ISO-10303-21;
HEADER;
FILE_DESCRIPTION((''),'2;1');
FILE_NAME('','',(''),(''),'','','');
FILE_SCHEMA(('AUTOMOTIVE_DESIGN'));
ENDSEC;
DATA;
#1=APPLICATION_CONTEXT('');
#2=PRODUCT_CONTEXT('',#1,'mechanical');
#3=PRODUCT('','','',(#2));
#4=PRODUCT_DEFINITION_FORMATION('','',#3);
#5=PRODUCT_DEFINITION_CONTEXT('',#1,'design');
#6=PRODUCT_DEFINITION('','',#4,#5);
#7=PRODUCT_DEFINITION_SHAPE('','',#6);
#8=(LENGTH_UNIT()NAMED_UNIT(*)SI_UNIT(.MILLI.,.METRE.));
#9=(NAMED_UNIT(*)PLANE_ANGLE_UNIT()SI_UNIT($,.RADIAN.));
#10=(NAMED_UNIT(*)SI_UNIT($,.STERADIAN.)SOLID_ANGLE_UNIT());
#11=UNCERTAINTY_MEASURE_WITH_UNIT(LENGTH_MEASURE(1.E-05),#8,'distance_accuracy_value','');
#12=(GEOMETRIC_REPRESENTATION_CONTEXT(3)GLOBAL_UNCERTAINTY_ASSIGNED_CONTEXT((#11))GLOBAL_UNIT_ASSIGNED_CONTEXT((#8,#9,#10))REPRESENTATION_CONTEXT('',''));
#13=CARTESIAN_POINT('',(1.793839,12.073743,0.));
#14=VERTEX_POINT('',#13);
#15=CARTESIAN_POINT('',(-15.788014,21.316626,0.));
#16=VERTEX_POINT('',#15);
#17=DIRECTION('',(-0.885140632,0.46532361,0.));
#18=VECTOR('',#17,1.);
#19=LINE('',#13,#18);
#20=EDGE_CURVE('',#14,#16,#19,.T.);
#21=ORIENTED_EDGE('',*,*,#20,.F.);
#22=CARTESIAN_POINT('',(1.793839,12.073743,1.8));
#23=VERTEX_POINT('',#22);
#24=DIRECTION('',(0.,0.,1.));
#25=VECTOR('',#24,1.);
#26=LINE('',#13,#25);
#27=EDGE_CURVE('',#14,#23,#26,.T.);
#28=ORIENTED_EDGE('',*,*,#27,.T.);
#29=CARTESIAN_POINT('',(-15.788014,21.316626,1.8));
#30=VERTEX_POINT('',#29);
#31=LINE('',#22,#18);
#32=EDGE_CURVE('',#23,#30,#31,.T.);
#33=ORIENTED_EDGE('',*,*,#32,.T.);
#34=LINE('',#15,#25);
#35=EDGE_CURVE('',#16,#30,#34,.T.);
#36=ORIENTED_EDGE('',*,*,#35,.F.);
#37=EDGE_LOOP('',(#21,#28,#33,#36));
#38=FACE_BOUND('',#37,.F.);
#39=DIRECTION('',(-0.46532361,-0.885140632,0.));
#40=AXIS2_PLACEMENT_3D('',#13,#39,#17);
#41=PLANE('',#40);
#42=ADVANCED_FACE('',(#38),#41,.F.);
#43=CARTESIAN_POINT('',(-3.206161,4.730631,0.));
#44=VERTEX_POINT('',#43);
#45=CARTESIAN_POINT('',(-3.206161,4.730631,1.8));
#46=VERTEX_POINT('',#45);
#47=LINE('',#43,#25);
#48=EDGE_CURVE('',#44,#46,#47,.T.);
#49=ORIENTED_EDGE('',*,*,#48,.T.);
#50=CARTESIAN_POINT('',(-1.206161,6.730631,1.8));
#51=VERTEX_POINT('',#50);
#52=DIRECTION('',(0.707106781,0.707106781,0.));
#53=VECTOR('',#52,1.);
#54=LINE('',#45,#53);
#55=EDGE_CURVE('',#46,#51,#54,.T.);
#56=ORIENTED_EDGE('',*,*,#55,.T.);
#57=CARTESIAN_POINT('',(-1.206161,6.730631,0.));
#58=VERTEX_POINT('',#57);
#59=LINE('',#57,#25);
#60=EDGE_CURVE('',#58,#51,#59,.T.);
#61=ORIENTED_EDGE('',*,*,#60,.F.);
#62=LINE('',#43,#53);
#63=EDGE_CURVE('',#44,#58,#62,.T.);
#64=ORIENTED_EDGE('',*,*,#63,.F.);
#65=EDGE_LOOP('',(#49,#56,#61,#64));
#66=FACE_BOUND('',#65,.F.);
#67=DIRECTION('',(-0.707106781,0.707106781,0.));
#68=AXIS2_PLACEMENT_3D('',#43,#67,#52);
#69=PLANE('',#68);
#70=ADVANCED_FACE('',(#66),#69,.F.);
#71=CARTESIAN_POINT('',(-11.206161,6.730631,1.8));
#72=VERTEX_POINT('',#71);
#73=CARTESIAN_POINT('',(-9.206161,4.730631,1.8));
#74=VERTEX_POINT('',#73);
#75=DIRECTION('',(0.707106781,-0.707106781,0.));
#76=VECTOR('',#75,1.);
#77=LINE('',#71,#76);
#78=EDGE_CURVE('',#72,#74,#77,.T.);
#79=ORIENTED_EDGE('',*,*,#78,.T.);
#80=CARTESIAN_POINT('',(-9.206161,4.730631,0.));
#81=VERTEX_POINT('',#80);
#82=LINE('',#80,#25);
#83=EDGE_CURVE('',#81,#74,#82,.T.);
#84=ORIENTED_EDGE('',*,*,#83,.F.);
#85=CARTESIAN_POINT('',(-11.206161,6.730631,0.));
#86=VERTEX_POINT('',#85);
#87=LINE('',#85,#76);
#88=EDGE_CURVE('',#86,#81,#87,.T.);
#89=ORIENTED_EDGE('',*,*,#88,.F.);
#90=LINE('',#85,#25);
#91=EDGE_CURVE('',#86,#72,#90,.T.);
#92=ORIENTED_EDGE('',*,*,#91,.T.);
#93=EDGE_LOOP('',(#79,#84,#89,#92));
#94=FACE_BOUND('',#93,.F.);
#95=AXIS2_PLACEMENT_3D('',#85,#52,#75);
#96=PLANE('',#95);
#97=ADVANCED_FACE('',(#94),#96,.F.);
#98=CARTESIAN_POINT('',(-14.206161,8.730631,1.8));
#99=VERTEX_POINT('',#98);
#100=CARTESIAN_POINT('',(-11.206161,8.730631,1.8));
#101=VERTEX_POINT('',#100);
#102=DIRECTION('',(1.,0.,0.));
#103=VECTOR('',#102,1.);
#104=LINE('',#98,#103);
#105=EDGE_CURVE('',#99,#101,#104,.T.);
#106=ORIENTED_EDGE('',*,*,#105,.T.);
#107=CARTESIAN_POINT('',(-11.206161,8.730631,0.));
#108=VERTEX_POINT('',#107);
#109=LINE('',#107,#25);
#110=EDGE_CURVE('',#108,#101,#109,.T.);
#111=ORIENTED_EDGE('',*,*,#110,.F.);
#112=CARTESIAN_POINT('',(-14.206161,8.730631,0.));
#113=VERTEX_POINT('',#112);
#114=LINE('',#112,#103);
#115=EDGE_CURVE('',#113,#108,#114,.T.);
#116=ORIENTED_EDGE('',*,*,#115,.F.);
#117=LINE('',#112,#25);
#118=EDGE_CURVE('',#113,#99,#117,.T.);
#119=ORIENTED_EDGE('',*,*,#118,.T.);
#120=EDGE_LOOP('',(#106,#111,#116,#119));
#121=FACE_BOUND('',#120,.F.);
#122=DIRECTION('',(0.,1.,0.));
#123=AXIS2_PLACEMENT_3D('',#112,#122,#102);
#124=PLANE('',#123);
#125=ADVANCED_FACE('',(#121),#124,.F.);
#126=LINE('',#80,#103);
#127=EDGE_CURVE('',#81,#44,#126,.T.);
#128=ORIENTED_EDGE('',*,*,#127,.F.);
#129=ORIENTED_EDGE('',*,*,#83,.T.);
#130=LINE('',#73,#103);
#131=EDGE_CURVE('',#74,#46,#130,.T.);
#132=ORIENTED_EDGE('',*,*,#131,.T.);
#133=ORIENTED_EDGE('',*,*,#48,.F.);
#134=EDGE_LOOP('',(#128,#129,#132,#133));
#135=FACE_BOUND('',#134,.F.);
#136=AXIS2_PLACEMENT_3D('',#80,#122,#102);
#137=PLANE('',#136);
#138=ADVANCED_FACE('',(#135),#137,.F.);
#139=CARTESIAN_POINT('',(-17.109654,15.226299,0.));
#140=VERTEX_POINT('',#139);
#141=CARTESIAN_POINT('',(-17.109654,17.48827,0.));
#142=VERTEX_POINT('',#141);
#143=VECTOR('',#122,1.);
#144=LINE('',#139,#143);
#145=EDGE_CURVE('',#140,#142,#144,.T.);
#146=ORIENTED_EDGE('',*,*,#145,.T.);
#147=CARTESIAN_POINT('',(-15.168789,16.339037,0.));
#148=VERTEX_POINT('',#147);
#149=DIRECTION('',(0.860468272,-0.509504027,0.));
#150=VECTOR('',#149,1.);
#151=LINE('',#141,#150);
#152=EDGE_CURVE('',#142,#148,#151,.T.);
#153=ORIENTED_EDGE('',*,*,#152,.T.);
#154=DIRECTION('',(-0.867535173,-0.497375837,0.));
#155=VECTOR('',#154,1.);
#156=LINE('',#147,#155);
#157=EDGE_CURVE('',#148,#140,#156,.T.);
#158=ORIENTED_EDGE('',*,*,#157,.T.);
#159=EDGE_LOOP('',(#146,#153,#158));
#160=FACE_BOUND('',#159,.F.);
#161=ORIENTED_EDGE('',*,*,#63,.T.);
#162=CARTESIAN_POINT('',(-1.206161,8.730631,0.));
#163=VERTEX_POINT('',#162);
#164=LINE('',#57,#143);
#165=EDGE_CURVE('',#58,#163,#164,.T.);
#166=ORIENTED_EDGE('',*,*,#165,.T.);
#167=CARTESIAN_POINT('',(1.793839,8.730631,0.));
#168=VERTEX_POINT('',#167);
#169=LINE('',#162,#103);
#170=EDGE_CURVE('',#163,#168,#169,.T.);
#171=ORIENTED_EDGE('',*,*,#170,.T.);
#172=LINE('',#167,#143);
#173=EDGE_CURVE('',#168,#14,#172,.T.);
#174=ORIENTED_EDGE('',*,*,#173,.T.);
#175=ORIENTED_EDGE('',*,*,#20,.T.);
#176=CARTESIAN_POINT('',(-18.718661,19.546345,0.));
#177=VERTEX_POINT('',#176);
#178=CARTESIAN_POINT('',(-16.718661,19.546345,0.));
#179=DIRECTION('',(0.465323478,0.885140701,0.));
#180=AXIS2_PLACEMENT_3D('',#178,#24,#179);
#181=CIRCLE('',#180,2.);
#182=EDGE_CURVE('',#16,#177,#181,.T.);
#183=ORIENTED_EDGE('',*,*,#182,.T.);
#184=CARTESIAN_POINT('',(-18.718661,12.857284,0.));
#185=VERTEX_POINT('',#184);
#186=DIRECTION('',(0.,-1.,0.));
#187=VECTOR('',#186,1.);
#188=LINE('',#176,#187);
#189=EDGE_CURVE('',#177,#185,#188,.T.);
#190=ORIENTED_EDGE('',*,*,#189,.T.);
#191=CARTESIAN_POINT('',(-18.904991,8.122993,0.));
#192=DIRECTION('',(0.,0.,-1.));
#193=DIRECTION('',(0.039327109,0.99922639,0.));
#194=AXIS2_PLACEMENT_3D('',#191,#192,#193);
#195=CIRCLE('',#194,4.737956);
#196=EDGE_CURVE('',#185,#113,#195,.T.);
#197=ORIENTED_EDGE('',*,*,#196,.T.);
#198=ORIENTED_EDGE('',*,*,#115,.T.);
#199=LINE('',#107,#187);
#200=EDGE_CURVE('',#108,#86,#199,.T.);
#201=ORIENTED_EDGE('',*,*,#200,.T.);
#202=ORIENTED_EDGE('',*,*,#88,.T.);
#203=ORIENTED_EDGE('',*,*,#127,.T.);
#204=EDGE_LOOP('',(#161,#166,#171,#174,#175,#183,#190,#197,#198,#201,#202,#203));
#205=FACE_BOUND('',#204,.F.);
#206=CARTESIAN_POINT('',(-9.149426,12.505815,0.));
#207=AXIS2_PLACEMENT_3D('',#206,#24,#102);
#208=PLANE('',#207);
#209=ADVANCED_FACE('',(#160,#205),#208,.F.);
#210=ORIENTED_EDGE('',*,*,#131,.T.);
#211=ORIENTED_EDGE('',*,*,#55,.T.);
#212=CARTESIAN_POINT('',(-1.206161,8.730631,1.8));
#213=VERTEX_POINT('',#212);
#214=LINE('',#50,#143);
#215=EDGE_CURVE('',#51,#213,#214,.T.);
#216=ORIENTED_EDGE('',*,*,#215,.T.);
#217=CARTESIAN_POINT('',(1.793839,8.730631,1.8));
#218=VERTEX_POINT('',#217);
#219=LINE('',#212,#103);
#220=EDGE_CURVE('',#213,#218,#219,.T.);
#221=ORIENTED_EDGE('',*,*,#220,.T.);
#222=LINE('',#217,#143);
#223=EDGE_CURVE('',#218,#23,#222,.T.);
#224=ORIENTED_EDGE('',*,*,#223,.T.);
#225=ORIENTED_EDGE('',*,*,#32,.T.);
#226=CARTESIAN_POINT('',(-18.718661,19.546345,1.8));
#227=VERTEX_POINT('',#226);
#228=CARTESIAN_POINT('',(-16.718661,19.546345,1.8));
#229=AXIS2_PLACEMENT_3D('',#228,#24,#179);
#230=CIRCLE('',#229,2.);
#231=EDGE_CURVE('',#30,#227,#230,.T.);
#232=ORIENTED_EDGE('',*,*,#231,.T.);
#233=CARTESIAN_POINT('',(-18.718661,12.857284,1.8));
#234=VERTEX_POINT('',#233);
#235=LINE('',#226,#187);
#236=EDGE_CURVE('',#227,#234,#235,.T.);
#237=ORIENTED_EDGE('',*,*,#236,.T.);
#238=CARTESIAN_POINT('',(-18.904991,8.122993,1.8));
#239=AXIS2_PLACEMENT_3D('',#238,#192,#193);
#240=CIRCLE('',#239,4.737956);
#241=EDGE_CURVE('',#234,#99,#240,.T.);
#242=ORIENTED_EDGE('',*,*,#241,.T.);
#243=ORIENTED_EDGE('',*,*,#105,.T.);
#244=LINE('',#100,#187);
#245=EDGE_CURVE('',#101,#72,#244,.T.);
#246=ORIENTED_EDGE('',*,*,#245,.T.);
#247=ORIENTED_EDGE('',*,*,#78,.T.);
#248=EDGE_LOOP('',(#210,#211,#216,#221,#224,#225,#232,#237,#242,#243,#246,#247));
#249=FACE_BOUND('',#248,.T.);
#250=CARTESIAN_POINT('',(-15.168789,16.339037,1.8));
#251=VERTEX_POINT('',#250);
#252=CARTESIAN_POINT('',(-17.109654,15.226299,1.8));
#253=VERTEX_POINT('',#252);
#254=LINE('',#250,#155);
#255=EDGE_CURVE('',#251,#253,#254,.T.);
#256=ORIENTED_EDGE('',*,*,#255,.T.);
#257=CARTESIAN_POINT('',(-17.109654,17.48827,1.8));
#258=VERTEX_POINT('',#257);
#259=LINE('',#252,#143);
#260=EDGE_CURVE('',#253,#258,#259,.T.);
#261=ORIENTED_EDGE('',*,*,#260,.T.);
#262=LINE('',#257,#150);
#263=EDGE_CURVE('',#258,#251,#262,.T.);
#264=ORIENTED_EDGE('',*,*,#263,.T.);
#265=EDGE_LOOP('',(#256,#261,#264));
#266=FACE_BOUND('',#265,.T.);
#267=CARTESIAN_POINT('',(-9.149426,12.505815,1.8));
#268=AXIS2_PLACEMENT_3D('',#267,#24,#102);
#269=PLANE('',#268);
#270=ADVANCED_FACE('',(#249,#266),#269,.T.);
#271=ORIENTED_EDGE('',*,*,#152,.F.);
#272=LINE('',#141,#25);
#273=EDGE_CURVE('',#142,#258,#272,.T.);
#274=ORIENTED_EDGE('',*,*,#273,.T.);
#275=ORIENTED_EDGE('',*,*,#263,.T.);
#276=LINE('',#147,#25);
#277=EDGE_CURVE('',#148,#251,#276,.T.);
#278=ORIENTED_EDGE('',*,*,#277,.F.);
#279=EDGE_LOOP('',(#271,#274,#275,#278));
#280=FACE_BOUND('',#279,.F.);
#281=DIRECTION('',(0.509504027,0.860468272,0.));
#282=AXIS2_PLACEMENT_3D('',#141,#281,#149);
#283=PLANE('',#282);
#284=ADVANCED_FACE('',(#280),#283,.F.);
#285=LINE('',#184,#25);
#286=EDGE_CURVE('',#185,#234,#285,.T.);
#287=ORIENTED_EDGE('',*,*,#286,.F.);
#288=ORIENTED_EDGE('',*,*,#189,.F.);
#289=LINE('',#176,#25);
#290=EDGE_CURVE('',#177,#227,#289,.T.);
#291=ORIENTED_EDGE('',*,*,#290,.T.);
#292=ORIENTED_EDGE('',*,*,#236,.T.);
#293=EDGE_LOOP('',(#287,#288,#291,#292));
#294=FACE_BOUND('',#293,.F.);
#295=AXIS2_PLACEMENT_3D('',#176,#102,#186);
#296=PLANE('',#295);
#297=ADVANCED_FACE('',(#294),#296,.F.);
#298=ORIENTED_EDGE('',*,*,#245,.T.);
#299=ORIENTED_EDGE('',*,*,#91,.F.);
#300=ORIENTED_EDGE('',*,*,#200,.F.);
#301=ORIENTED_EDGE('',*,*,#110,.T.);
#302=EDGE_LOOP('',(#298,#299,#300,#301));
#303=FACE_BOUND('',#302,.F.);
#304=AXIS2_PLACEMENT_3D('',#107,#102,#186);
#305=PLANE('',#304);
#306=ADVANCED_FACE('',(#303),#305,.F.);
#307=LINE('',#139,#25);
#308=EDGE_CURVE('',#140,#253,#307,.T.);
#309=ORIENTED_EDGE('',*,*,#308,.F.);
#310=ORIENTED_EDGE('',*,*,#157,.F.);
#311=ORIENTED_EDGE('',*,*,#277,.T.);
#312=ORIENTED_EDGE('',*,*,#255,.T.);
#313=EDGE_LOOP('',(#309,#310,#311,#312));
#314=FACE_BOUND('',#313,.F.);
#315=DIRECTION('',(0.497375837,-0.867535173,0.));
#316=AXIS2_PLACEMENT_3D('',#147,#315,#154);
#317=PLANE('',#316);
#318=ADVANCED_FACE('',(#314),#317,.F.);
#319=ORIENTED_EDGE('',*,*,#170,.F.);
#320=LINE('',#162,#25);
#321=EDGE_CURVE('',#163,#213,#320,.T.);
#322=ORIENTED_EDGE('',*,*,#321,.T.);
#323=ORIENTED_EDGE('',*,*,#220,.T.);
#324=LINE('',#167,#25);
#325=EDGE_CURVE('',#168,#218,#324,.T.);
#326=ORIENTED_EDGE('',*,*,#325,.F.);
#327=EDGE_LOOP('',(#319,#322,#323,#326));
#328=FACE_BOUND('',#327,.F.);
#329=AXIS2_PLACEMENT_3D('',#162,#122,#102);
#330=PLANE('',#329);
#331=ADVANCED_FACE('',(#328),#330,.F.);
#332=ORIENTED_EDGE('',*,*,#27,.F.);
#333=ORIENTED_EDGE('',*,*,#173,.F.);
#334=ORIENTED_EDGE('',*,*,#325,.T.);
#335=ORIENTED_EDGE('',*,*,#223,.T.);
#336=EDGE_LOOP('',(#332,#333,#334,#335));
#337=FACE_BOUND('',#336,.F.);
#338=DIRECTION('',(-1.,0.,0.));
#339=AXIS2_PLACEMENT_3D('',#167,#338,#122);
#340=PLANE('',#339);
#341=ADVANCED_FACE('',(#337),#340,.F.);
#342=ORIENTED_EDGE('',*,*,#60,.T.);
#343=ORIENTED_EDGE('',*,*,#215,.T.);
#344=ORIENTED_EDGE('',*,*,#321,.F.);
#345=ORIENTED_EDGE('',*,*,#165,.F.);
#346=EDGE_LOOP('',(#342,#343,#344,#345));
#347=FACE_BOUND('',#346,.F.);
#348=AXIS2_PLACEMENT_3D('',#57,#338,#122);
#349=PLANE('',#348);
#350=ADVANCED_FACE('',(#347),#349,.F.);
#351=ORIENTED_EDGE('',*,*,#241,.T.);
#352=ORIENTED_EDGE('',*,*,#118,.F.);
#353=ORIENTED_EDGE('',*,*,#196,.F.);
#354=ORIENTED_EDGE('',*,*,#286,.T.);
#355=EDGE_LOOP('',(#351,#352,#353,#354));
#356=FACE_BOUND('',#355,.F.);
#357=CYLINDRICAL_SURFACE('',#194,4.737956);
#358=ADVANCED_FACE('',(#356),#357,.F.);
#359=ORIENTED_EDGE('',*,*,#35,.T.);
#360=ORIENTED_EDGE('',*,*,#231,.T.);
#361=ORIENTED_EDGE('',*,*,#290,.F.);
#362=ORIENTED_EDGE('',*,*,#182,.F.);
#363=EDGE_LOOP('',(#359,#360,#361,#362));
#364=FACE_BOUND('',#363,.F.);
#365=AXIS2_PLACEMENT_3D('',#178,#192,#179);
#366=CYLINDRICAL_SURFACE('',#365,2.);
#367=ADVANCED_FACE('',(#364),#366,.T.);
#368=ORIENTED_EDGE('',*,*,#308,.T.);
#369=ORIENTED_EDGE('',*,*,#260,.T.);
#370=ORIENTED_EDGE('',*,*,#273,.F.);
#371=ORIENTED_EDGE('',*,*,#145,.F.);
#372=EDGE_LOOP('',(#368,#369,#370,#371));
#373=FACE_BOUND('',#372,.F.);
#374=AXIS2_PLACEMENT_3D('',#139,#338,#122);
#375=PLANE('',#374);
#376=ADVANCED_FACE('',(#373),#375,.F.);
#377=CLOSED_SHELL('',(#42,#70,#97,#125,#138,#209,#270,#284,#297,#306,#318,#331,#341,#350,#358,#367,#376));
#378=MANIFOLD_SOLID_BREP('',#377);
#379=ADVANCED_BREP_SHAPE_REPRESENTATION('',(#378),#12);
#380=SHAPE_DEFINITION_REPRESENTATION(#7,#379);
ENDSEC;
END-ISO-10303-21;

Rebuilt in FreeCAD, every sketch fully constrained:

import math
import FreeCAD as App
import Part
import Sketcher
Q = App.Units.Quantity

doc = App.newDocument("Part")
body = doc.addObject("PartDesign::Body", "Body")

# Sketch on XY plane
sketch1 = body.newObject("Sketcher::SketchObject", "Sketch")
sketch1.AttachmentSupport = (doc.getObject("XY_Plane"), [""])
sketch1.MapMode = "FlatFace"
sketch1.addGeometry([
    Part.ArcOfCircle(Part.Circle(App.Vector(-18.9, 8.1, 0), App.Vector(0, 0, 1), 4.7), math.radians(7), math.radians(88)),  # 0
    Part.LineSegment(App.Vector(-14.2, 8.7, 0), App.Vector(-11.2, 8.7, 0)),  # 1
    Part.LineSegment(App.Vector(-11.2, 8.7, 0), App.Vector(-11.2, 6.7, 0)),  # 2
    Part.LineSegment(App.Vector(-11.2, 6.7, 0), App.Vector(-9.2, 4.7, 0)),  # 3
    Part.LineSegment(App.Vector(-9.2, 4.7, 0), App.Vector(-3.2, 4.7, 0)),  # 4
    Part.LineSegment(App.Vector(-3.2, 4.7, 0), App.Vector(-1.2, 6.7, 0)),  # 5
    Part.LineSegment(App.Vector(-1.2, 6.7, 0), App.Vector(-1.2, 8.7, 0)),  # 6
    Part.LineSegment(App.Vector(-1.2, 8.7, 0), App.Vector(1.8, 8.7, 0)),  # 7
    Part.LineSegment(App.Vector(1.8, 8.7, 0), App.Vector(1.8, 12.1, 0)),  # 8
    Part.LineSegment(App.Vector(1.8, 12.1, 0), App.Vector(-15.8, 21.3, 0)),  # 9
    Part.ArcOfCircle(Part.Circle(App.Vector(-16.7, 19.5, 0), App.Vector(0, 0, 1), 2), math.radians(62), math.radians(180)),  # 10
    Part.LineSegment(App.Vector(-18.7, 19.5, 0), App.Vector(-18.7, 12.9, 0)),  # 11
    Part.LineSegment(App.Vector(-15.2, 16.3, 0), App.Vector(-17.1, 15.2, 0)),  # 12
    Part.LineSegment(App.Vector(-17.1, 15.2, 0), App.Vector(-17.1, 17.5, 0)),  # 13
    Part.LineSegment(App.Vector(-17.1, 17.5, 0), App.Vector(-15.2, 16.3, 0)),  # 14
], False)
sketch1.addConstraint([
    Sketcher.Constraint("Coincident", 0, 1, 1, 1),
    Sketcher.Constraint("Coincident", 1, 2, 2, 1),
    Sketcher.Constraint("Coincident", 2, 2, 3, 1),
    Sketcher.Constraint("Coincident", 3, 2, 4, 1),
    Sketcher.Constraint("Coincident", 4, 2, 5, 1),
    Sketcher.Constraint("Coincident", 5, 2, 6, 1),
    Sketcher.Constraint("Coincident", 6, 2, 7, 1),
    Sketcher.Constraint("Coincident", 7, 2, 8, 1),
    Sketcher.Constraint("Coincident", 8, 2, 9, 1),
    Sketcher.Constraint("Tangent", 9, 2, 10, 1),
    Sketcher.Constraint("Tangent", 10, 2, 11, 1),
    Sketcher.Constraint("Coincident", 11, 2, 0, 2),
    Sketcher.Constraint("Coincident", 12, 2, 13, 1),
    Sketcher.Constraint("Coincident", 13, 2, 14, 1),
    Sketcher.Constraint("Coincident", 14, 2, 12, 1),
    Sketcher.Constraint("Horizontal", 1),
    Sketcher.Constraint("Vertical", 2),
    Sketcher.Constraint("Horizontal", 4),
    Sketcher.Constraint("Vertical", 6),
    Sketcher.Constraint("Horizontal", 7),
    Sketcher.Constraint("Vertical", 8),
    Sketcher.Constraint("Vertical", 11),
    Sketcher.Constraint("Vertical", 13),
    Sketcher.Constraint("Perpendicular", 3, 5),
    Sketcher.Constraint("Horizontal", 2, 2, 5, 2),
    Sketcher.Constraint("Horizontal", 1, 2, 6, 2),
    Sketcher.Constraint("Equal", 1, 7),
    Sketcher.Constraint("Equal", 3, 5),
    Sketcher.Constraint("Radius", 10, Q("2 mm")),
    Sketcher.Constraint("DistanceX", 1, 1, 1, 2, Q("3 mm")),
    Sketcher.Constraint("DistanceX", 4, 1, 4, 2, Q("6 mm")),
    Sketcher.Constraint("DistanceY", 2, 2, 2, 1, Q("2 mm")),
    Sketcher.Constraint("DistanceX", 2, 2, 3, 2, Q("2 mm")),
    Sketcher.Constraint("Radius", 0, Q("4.737956 mm")),
    Sketcher.Constraint("DistanceY", 8, 1, 8, 2, Q("3.343112 mm")),
    Sketcher.Constraint("DistanceY", 11, 2, 11, 1, Q("6.689061 mm")),
    Sketcher.Constraint("DistanceY", 13, 1, 13, 2, Q("2.261971 mm")),
    Sketcher.Constraint("DistanceY", -1, 1, 12, 2, Q("15.226299 mm")),
    Sketcher.Constraint("DistanceX", 10, 3, 0, 1, Q("2.5125 mm")),
    Sketcher.Constraint("Distance", 14, Q("2.255592 mm")),
    Sketcher.Constraint("DistanceX", 0, 3, -1, 1, Q("18.904991 mm")),
    Sketcher.Constraint("DistanceX", 10, 3, -1, 1, Q("16.718661 mm")),
    Sketcher.Constraint("DistanceY", -1, 1, 0, 1, Q("8.730631 mm")),
    Sketcher.Constraint("DistanceX", 14, 2, -1, 1, Q("15.168789 mm")),
    Sketcher.Constraint("DistanceX", 12, 2, 9, 2, Q("1.32164 mm")),
])
pad1 = body.newObject("PartDesign::Pad", "Pad")
pad1.Profile = sketch1
pad1.Length = 1.8

doc.recompute()
